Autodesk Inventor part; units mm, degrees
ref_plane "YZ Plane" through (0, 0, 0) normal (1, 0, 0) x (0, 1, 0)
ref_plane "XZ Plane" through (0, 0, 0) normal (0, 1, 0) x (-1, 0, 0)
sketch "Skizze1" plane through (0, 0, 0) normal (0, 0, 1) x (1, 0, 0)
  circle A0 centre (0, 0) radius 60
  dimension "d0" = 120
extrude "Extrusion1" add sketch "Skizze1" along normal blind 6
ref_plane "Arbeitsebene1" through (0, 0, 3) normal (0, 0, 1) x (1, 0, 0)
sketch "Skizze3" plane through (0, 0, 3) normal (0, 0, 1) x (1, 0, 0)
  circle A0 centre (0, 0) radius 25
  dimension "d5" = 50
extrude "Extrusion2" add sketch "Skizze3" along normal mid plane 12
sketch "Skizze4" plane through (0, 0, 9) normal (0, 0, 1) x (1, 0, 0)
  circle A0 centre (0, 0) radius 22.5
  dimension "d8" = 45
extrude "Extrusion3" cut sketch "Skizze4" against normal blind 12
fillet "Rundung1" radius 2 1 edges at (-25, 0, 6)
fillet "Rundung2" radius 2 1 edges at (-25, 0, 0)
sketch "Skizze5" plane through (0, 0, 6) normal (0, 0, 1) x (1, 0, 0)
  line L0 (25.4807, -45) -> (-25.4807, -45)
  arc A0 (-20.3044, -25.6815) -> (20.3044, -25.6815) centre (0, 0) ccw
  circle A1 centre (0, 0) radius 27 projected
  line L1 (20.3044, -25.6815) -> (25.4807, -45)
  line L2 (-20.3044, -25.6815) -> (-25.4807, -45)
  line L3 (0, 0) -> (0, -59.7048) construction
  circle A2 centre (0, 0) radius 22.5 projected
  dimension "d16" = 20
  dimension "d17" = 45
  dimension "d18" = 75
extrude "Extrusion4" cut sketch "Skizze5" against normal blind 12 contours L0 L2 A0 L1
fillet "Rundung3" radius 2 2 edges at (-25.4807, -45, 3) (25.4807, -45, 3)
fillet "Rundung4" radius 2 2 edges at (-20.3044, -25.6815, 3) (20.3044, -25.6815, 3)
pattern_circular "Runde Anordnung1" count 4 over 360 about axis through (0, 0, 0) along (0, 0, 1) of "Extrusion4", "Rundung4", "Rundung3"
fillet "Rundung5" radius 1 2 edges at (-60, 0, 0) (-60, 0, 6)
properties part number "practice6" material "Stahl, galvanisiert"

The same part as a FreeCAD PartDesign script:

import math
import FreeCAD as App
import Part
import Sketcher
Q = App.Units.Quantity


def edges_at(feature, points):
    """Names of the edges that pass closest to the given points."""
    edges = feature.Shape.Edges
    near = lambda p: min(range(len(edges)), key=lambda i: edges[i].distToShape(Part.Vertex(*p))[0])
    return sorted({f"Edge{near(p) + 1}" for p in points})

doc = App.newDocument("Part")
params = doc.addObject("Spreadsheet::Sheet", "Params")
for row, (alias, value) in enumerate([
    ("sketch1_diameter", "120 mm"),
    ("pad1_length", "6 mm"),
    ("sketch2_diameter", "50 mm"),
    ("pad2_length", "12 mm"),
    ("sketch3_diameter", "45 mm"),
    ("pocket1_length", "12 mm"),
    ("fillet_radius", "2 mm"),
    ("fillet2_radius", "2 mm"),
    ("sketch4_length", "20 mm"),
    ("pocket2_length", "12 mm"),
    ("fillet3_radius", "2 mm"),
    ("fillet4_radius", "2 mm"),
    ("fillet5_radius", "1 mm"),
], start=1):
    params.set(f"A{row}", alias)
    params.set(f"B{row}", "=" + value)
    params.setAlias(f"B{row}", alias)

body = doc.addObject("PartDesign::Body", "Body")

# Sketch on XY plane
sketch1 = doc.addObject("Sketcher::SketchObject", "Sketch")
body.addObject(sketch1)
sketch1.AttachmentSupport = (doc.XY_Plane, [""])
sketch1.MapMode = "FlatFace"
sketch1.addGeometry(Part.Circle(App.Vector(0, 0, 0), App.Vector(0, 0, 1), 60), False)
sketch1.addConstraint(Sketcher.Constraint("Coincident", 0, 3, -1, 1))
sketch1.addConstraint(Sketcher.Constraint("Diameter", 0, Q("120 mm")))
sketch1.setExpression("Constraints[1]", "Params.sketch1_diameter")
pad1 = doc.addObject("PartDesign::Pad", "Pad")
body.addObject(pad1)
pad1.Profile = sketch1
pad1.setExpression("Length", "Params.pad1_length")

# Sketch on XY plane
sketch2 = doc.addObject("Sketcher::SketchObject", "Sketch001")
body.addObject(sketch2)
sketch2.AttachmentSupport = (doc.XY_Plane, [""])
sketch2.MapMode = "FlatFace"
sketch2.AttachmentOffset = App.Placement(App.Vector(0, 0, 3), App.Rotation())
sketch2.addGeometry(Part.Circle(App.Vector(0, 0, 0), App.Vector(0, 0, 1), 25), False)
sketch2.addConstraint(Sketcher.Constraint("Coincident", 0, 3, -1, 1))
sketch2.addConstraint(Sketcher.Constraint("Diameter", 0, Q("50 mm")))
sketch2.setExpression("Constraints[1]", "Params.sketch2_diameter")
pad2 = doc.addObject("PartDesign::Pad", "Pad001")
body.addObject(pad2)
pad2.Profile = sketch2
pad2.setExpression("Length", "Params.pad2_length")
pad2.Midplane = True

# Sketch on XY plane
sketch3 = doc.addObject("Sketcher::SketchObject", "Sketch002")
body.addObject(sketch3)
sketch3.AttachmentSupport = (doc.XY_Plane, [""])
sketch3.MapMode = "FlatFace"
sketch3.AttachmentOffset = App.Placement(App.Vector(0, 0, 9), App.Rotation())
sketch3.addGeometry(Part.Circle(App.Vector(0, 0, 0), App.Vector(0, 0, 1), 22), False)
sketch3.addConstraint(Sketcher.Constraint("Coincident", 0, 3, -1, 1))
sketch3.addConstraint(Sketcher.Constraint("Diameter", 0, Q("45 mm")))
sketch3.setExpression("Constraints[1]", "Params.sketch3_diameter")
pocket1 = doc.addObject("PartDesign::Pocket", "Pocket")
body.addObject(pocket1)
pocket1.Profile = sketch3
pocket1.setExpression("Length", "Params.pocket1_length")
doc.recompute()

fillet = doc.addObject("PartDesign::Fillet", "Fillet")
body.addObject(fillet)
fillet.Base = (pocket1, edges_at(pocket1, [(-25, 0, 6)]))
fillet.setExpression("Radius", "Params.fillet_radius")
doc.recompute()

fillet2 = doc.addObject("PartDesign::Fillet", "Fillet001")
body.addObject(fillet2)
fillet2.Base = (fillet, edges_at(fillet, [(-25, 0, 0)]))
fillet2.setExpression("Radius", "Params.fillet2_radius")

# Sketch on XY plane
sketch4 = doc.addObject("Sketcher::SketchObject", "Sketch003")
body.addObject(sketch4)
sketch4.AttachmentSupport = (doc.XY_Plane, [""])
sketch4.MapMode = "FlatFace"
sketch4.AttachmentOffset = App.Placement(App.Vector(0, 0, 6), App.Rotation())
sketch4.addGeometry(Part.LineSegment(App.Vector(-25, -45, 0), App.Vector(25, -45, 0)), False)
sketch4.addGeometry(Part.LineSegment(App.Vector(25, -45, 0), App.Vector(20, -26, 0)), False)
sketch4.addGeometry(Part.ArcOfCircle(Part.Circle(App.Vector(0, 0, 0), App.Vector(0, 0, 1), 33), math.radians(-128), math.radians(-52)), False)
sketch4.addGeometry(Part.LineSegment(App.Vector(-20, -26, 0), App.Vector(-25, -45, 0)), False)
sketch4.addConstraint(Sketcher.Constraint("Coincident", 0, 2, 1, 1))
sketch4.addConstraint(Sketcher.Constraint("Coincident", 1, 2, 2, 2))
sketch4.addConstraint(Sketcher.Constraint("Coincident", 2, 1, 3, 1))
sketch4.addConstraint(Sketcher.Constraint("Coincident", 3, 2, 0, 1))
sketch4.addConstraint(Sketcher.Constraint("Horizontal", 0))
sketch4.addConstraint(Sketcher.Constraint("Coincident", 2, 3, -1, 1))
sketch4.addConstraint(Sketcher.Constraint("Horizontal", 1, 2, 2, 1))
sketch4.addConstraint(Sketcher.Constraint("Equal", 1, 3))
sketch4.addConstraint(Sketcher.Constraint("Distance", 1, Q("20 mm")))
sketch4.addConstraint(Sketcher.Constraint("DistanceY", 0, 2, -1, 1, Q("45 mm")))
sketch4.addConstraint(Sketcher.Constraint("Angle", 1, Q("104.9998 deg")))
sketch4.addConstraint(Sketcher.Constraint("Radius", 2, Q("32.7385 mm")))
sketch4.setExpression("Constraints[8]", "Params.sketch4_length")
pocket2 = doc.addObject("PartDesign::Pocket", "Pocket001")
body.addObject(pocket2)
pocket2.Profile = sketch4
pocket2.setExpression("Length", "Params.pocket2_length")
doc.recompute()

fillet3 = doc.addObject("PartDesign::Fillet", "Fillet002")
body.addObject(fillet3)
fillet3.Base = (pocket2, edges_at(pocket2, [(-25.481, -45, 3), (25.481, -45, 3)]))
fillet3.setExpression("Radius", "Params.fillet3_radius")
doc.recompute()

fillet4 = doc.addObject("PartDesign::Fillet", "Fillet003")
body.addObject(fillet4)
fillet4.Base = (fillet3, edges_at(fillet3, [(-20.304, -25.681, 3), (20.304, -25.681, 3)]))
fillet4.setExpression("Radius", "Params.fillet4_radius")
doc.recompute()

polarpattern = doc.addObject("PartDesign::PolarPattern", "PolarPattern")
body.addObject(polarpattern)
polarpattern.Originals = [pocket2, fillet4, fillet3]
polarpattern.Axis = (doc.Z_Axis, [""])
polarpattern.Angle = 360
polarpattern.Occurrences = 4
body.Tip = polarpattern
doc.recompute()

fillet5 = doc.addObject("PartDesign::Fillet", "Fillet004")
body.addObject(fillet5)
fillet5.Base = (polarpattern, edges_at(polarpattern, [(-60, 0, 0), (-60, 0, 6)]))
fillet5.setExpression("Radius", "Params.fillet5_radius")

doc.recompute()
